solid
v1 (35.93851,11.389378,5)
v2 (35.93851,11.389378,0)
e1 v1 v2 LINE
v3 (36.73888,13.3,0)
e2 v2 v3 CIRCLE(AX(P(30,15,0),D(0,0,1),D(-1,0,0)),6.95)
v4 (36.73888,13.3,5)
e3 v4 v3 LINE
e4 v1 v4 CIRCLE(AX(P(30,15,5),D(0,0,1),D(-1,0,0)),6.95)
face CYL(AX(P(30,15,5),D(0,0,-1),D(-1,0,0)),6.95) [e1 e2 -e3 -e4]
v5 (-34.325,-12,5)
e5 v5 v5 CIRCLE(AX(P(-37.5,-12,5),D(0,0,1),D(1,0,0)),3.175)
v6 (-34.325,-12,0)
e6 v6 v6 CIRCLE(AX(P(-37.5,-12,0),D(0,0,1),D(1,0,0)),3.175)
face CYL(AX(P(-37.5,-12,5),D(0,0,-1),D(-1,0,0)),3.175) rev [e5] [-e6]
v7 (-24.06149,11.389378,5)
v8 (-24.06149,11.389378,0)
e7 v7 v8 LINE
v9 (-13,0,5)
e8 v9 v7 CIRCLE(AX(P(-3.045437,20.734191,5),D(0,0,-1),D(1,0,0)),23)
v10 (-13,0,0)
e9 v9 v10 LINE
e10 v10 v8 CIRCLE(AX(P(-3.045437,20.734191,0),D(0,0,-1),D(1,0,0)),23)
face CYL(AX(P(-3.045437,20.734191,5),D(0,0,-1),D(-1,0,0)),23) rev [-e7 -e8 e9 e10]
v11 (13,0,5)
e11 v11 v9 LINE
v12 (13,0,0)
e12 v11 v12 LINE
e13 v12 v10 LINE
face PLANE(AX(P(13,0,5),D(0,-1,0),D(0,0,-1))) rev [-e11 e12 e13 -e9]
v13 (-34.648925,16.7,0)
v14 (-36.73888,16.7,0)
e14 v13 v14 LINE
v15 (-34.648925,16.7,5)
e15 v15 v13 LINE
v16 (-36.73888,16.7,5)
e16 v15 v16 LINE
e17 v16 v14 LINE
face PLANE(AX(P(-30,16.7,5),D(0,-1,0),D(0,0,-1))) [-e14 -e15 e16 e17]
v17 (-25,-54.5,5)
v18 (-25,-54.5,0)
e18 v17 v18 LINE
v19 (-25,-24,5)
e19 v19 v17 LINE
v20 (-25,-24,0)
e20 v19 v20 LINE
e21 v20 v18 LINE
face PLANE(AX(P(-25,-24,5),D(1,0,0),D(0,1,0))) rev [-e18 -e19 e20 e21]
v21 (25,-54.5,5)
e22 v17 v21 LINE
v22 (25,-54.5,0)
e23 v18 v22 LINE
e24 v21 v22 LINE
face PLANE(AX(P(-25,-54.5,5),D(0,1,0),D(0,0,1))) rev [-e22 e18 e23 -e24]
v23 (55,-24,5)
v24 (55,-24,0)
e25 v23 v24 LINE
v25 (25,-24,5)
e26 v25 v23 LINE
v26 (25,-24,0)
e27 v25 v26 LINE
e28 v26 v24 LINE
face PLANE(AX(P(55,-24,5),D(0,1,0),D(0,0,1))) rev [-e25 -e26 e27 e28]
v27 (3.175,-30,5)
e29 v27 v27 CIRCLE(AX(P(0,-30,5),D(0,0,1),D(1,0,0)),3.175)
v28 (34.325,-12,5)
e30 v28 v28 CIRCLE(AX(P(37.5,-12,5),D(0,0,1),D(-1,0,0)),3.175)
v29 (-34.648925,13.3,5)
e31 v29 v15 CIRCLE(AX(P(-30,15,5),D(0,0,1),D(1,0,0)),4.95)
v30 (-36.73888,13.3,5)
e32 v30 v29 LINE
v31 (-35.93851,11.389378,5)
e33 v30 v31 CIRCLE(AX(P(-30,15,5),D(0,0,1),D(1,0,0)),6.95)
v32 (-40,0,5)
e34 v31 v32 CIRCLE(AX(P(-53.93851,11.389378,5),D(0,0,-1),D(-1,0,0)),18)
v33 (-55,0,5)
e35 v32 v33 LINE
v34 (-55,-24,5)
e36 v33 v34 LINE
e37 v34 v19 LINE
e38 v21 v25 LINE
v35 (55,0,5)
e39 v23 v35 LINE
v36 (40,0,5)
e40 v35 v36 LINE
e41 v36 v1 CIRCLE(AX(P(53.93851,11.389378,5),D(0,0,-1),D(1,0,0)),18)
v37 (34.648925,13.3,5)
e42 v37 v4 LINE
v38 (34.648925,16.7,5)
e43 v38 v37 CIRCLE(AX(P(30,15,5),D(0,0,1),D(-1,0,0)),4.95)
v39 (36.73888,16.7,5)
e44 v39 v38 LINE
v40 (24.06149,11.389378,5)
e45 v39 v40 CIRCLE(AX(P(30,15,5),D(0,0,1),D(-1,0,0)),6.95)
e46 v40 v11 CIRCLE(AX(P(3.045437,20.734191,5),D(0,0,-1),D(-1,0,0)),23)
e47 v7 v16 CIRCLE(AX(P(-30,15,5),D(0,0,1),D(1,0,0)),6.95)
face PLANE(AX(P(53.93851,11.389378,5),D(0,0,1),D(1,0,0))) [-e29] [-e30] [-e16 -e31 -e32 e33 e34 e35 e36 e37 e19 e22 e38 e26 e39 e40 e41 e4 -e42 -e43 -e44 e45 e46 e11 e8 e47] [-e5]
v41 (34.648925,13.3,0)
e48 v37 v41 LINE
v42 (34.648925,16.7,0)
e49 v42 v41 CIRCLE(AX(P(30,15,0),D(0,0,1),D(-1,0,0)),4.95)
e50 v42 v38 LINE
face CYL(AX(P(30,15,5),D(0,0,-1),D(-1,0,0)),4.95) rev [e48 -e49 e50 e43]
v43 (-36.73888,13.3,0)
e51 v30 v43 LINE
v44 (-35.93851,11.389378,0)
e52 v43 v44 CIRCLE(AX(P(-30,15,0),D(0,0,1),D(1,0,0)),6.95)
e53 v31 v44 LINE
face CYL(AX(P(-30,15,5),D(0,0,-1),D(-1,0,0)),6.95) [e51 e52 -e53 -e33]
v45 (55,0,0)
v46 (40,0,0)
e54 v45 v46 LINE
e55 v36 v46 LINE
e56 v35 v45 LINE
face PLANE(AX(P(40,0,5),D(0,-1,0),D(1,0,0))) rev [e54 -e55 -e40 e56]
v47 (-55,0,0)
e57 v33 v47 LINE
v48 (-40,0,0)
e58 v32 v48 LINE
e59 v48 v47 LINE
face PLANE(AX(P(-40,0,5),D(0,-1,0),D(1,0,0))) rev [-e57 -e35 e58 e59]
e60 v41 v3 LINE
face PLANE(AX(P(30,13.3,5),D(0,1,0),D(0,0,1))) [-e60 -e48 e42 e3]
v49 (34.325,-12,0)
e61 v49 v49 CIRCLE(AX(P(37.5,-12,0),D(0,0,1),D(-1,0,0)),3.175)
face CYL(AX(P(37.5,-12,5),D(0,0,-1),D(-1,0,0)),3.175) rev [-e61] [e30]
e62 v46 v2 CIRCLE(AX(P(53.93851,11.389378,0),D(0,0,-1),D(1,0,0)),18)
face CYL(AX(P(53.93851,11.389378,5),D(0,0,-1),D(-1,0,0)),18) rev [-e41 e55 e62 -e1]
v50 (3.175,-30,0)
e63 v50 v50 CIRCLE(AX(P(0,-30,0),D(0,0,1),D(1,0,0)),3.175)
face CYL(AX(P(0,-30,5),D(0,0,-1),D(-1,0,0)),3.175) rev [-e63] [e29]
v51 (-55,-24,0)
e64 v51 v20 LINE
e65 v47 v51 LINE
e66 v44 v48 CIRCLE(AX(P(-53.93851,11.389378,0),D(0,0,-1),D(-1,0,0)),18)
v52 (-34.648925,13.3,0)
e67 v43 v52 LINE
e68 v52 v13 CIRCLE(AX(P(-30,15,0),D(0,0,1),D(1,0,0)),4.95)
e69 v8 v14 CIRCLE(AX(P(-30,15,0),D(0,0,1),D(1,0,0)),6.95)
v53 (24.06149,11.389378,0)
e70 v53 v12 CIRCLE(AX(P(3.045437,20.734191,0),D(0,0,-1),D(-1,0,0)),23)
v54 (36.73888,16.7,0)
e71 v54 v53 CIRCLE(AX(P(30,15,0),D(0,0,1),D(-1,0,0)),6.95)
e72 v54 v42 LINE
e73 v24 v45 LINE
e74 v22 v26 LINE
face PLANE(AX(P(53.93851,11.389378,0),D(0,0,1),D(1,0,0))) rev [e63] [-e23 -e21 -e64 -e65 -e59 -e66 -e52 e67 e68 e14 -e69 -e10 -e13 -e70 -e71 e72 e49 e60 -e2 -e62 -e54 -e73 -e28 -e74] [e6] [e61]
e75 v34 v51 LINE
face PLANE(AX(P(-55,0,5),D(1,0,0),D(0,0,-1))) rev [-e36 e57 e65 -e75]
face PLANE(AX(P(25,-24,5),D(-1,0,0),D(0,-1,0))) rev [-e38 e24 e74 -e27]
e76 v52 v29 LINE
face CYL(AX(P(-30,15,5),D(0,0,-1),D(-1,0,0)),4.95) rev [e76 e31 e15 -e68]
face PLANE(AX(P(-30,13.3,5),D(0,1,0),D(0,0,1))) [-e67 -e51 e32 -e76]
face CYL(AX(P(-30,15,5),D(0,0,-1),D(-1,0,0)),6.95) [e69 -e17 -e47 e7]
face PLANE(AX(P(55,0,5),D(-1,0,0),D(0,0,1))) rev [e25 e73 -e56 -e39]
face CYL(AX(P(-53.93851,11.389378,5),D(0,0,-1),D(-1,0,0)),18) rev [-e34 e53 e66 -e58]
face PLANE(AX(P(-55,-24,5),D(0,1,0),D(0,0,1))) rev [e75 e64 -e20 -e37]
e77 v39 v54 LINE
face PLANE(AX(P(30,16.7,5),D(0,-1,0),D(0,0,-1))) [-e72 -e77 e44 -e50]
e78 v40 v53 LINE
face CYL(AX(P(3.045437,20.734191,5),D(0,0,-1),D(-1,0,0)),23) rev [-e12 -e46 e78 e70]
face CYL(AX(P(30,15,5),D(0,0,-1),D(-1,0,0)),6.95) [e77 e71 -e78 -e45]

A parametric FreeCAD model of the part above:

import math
import FreeCAD as App
import Part
import Sketcher
from FreeCAD import Vector
Q = App.Units.Quantity

doc = App.newDocument("Part")
body = doc.addObject("PartDesign::Body", "Body")

# Sketch on XY plane
sketch1 = body.newObject("Sketcher::SketchObject", "Sketch")
sketch1.AttachmentSupport = (doc.getObject("XY_Plane"), [""])
sketch1.MapMode = "FlatFace"
sketch1.addGeometry([
    Part.LineSegment(Vector(13, 0, 0), Vector(-13, 0, 0)),  # 0
    Part.ArcOfCircle(Part.Circle(Vector(-3, 20.7, 0), Vector(0, 0, 1), 23), math.radians(-156), math.radians(-116)),  # 1
    Part.ArcOfCircle(Part.Circle(Vector(-30, 15, 0), Vector(0, 0, 1), 7), math.radians(-31), math.radians(211)),  # 2
    Part.ArcOfCircle(Part.Circle(Vector(-53.9, 11.4, 0), Vector(0, 0, 1), 18), math.radians(-39), math.radians(0)),  # 3
    Part.LineSegment(Vector(-40, 0, 0), Vector(-55, 0, 0)),  # 4
    Part.LineSegment(Vector(-55, 0, 0), Vector(-55, -24, 0)),  # 5
    Part.LineSegment(Vector(-55, -24, 0), Vector(-25, -24, 0)),  # 6
    Part.LineSegment(Vector(-25, -24, 0), Vector(-25, -54.5, 0)),  # 7
    Part.LineSegment(Vector(-25, -54.5, 0), Vector(25, -54.5, 0)),  # 8
    Part.LineSegment(Vector(25, -54.5, 0), Vector(25, -24, 0)),  # 9
    Part.LineSegment(Vector(25, -24, 0), Vector(55, -24, 0)),  # 10
    Part.LineSegment(Vector(55, -24, 0), Vector(55, 0, 0)),  # 11
    Part.LineSegment(Vector(55, 0, 0), Vector(40, 0, 0)),  # 12
    Part.ArcOfCircle(Part.Circle(Vector(53.9, 11.4, 0), Vector(0, 0, 1), 18), math.radians(180), math.radians(219)),  # 13
    Part.ArcOfCircle(Part.Circle(Vector(30, 15, 0), Vector(0, 0, 1), 7), math.radians(-31), math.radians(211)),  # 14
    Part.ArcOfCircle(Part.Circle(Vector(3, 20.7, 0), Vector(0, 0, 1), 23), math.radians(-64), math.radians(-24)),  # 15
    Part.Circle(Vector(-37.5, -12, 0), Vector(0, 0, 1), 3.2),  # 16
    Part.Circle(Vector(0, -30, 0), Vector(0, 0, 1), 3.2),  # 17
    Part.Circle(Vector(37.5, -12, 0), Vector(0, 0, 1), 3.2),  # 18
    Part.Circle(Vector(-30, 15, 0), Vector(0, 0, 1), 5),  # 19
    Part.Circle(Vector(30, 15, 0), Vector(0, 0, 1), 5),  # 20
], False)
sketch1.addConstraint([
    Sketcher.Constraint("Coincident", 0, 2, 1, 2),
    Sketcher.Constraint("Coincident", 1, 1, 2, 1),
    Sketcher.Constraint("Coincident", 2, 2, 3, 2),
    Sketcher.Constraint("Coincident", 3, 1, 4, 1),
    Sketcher.Constraint("Coincident", 4, 2, 5, 1),
    Sketcher.Constraint("Coincident", 5, 2, 6, 1),
    Sketcher.Constraint("Coincident", 6, 2, 7, 1),
    Sketcher.Constraint("Coincident", 7, 2, 8, 1),
    Sketcher.Constraint("Coincident", 8, 2, 9, 1),
    Sketcher.Constraint("Coincident", 9, 2, 10, 1),
    Sketcher.Constraint("Coincident", 10, 2, 11, 1),
    Sketcher.Constraint("Coincident", 11, 2, 12, 1),
    Sketcher.Constraint("Coincident", 12, 2, 13, 2),
    Sketcher.Constraint("Coincident", 13, 1, 14, 1),
    Sketcher.Constraint("Coincident", 14, 2, 15, 2),
    Sketcher.Constraint("Coincident", 15, 1, 0, 1),
    Sketcher.Constraint("Horizontal", 0),
    Sketcher.Constraint("Horizontal", 4),
    Sketcher.Constraint("Vertical", 5),
    Sketcher.Constraint("Horizontal", 6),
    Sketcher.Constraint("Vertical", 7),
    Sketcher.Constraint("Horizontal", 8),
    Sketcher.Constraint("Vertical", 9),
    Sketcher.Constraint("Horizontal", 10),
    Sketcher.Constraint("Vertical", 11),
    Sketcher.Constraint("Horizontal", 12),
    Sketcher.Constraint("Coincident", 19, 3, 2, 3),
    Sketcher.Constraint("Coincident", 20, 3, 14, 3),
    Sketcher.Constraint("Equal", 3, 13),
    Sketcher.Constraint("Equal", 2, 14),
    Sketcher.Constraint("Equal", 1, 15),
    Sketcher.Constraint("Equal", 16, 17),
    Sketcher.Constraint("Equal", 17, 18),
    Sketcher.Constraint("Equal", 19, 20),
    Sketcher.Constraint("Symmetric", 4, 2, 11, 2, -1, 1),
    Sketcher.Constraint("Symmetric", 0, 2, 15, 1, -1, 1),
    Sketcher.Constraint("Symmetric", 3, 3, 13, 3, -2),
    Sketcher.Constraint("Symmetric", 2, 3, 14, 3, -2),
    Sketcher.Constraint("Symmetric", 16, 3, 18, 3, -2),
    Sketcher.Constraint("Symmetric", 6, 2, 9, 2, -2),
    Sketcher.Constraint("PointOnObject", 17, 3, -2),
    Sketcher.Constraint("PointOnObject", 3, 1, -1),
    Sketcher.Constraint("Horizontal", 1, 3, 15, 3),
    Sketcher.Constraint("Horizontal", 13, 3, 1, 1),
    Sketcher.Constraint("Horizontal", 1, 1, 2, 2),
    Sketcher.Constraint("Radius", 1, Q("23 mm")),
    Sketcher.Constraint("Radius", 3, Q("18 mm")),
    Sketcher.Constraint("Diameter", 19, Q("9.9 mm")),
    Sketcher.Constraint("Diameter", 16, Q("6.35 mm")),
    Sketcher.Constraint("DistanceX", 0, 2, 0, 1, Q("26 mm")),
    Sketcher.Constraint("DistanceX", 4, 2, 4, 1, Q("15 mm")),
    Sketcher.Constraint("DistanceX", 6, 1, 6, 2, Q("30 mm")),
    Sketcher.Constraint("DistanceX", 8, 1, 8, 2, Q("50 mm")),
    Sketcher.Constraint("DistanceY", 5, 2, 5, 1, Q("24 mm")),
    Sketcher.Constraint("Radius", 2, Q("6.95 mm")),
    Sketcher.Constraint("DistanceY", 7, 2, 7, 1, Q("30.5 mm")),
    Sketcher.Constraint("DistanceX", 2, 3, -1, 1, Q("30 mm")),
    Sketcher.Constraint("DistanceY", -1, 1, 2, 3, Q("15 mm")),
    Sketcher.Constraint("DistanceY", 16, 3, -1, 1, Q("12 mm")),
    Sketcher.Constraint("DistanceY", 17, 3, -1, 1, Q("30 mm")),
    Sketcher.Constraint("DistanceX", 16, 3, -1, 1, Q("37.5 mm")),
])
pad1 = body.newObject("PartDesign::Pad", "Pad")
pad1.Profile = sketch1
pad1.Length = 5

# Sketch on XY plane
sketch2 = body.newObject("Sketcher::SketchObject", "Sketch001")
sketch2.AttachmentSupport = (doc.getObject("XY_Plane"), [""])
sketch2.MapMode = "FlatFace"
sketch2.addGeometry([
    Part.LineSegment(Vector(-30, 16.7, 0), Vector(-36.7, 16.7, 0)),  # 0
    Part.ArcOfCircle(Part.Circle(Vector(-30, 15, 0), Vector(0, 0, 1), 7), math.radians(166), math.radians(194)),  # 1
    Part.LineSegment(Vector(-36.7, 13.3, 0), Vector(-30, 13.3, 0)),  # 2
    Part.LineSegment(Vector(-30, 13.3, 0), Vector(-30, 16.7, 0)),  # 3
    Part.LineSegment(Vector(30, 16.7, 0), Vector(30, 13.3, 0)),  # 4
    Part.LineSegment(Vector(30, 13.3, 0), Vector(36.7, 13.3, 0)),  # 5
    Part.ArcOfCircle(Part.Circle(Vector(30, 15, 0), Vector(0, 0, 1), 7), math.radians(-14), math.radians(14)),  # 6
    Part.LineSegment(Vector(36.7, 16.7, 0), Vector(30, 16.7, 0)),  # 7
], False)
sketch2.addConstraint([
    Sketcher.Constraint("Coincident", 0, 2, 1, 1),
    Sketcher.Constraint("Coincident", 1, 2, 2, 1),
    Sketcher.Constraint("Coincident", 2, 2, 3, 1),
    Sketcher.Constraint("Coincident", 3, 2, 0, 1),
    Sketcher.Constraint("Coincident", 4, 2, 5, 1),
    Sketcher.Constraint("Coincident", 5, 2, 6, 1),
    Sketcher.Constraint("Coincident", 6, 2, 7, 1),
    Sketcher.Constraint("Coincident", 7, 2, 4, 1),
    Sketcher.Constraint("Horizontal", 0),
    Sketcher.Constraint("Horizontal", 2),
    Sketcher.Constraint("Vertical", 3),
    Sketcher.Constraint("Vertical", 4),
    Sketcher.Constraint("Horizontal", 5),
    Sketcher.Constraint("Horizontal", 7),
    Sketcher.Constraint("Equal", 1, 6),
    Sketcher.Constraint("Symmetric", 1, 3, 6, 3, -2),
    Sketcher.Constraint("Symmetric", 2, 2, 4, 2, -2),
    Sketcher.Constraint("Horizontal", 3, 2, 6, 2),
    Sketcher.Constraint("Vertical", 0, 2, 1, 2),
    Sketcher.Constraint("Vertical", 1, 3, 2, 2),
    Sketcher.Constraint("Radius", 1, Q("6.95 mm")),
    Sketcher.Constraint("DistanceY", 3, 1, 3, 2, Q("3.4 mm")),
    Sketcher.Constraint("DistanceX", 1, 3, -1, 1, Q("30 mm")),
    Sketcher.Constraint("DistanceY", -1, 1, 1, 3, Q("15 mm")),
])
pocket1 = body.newObject("PartDesign::Pocket", "Pocket")
pocket1.Profile = sketch2
pocket1.Type = "ThroughAll"
pocket1.Reversed = True

doc.recompute()
